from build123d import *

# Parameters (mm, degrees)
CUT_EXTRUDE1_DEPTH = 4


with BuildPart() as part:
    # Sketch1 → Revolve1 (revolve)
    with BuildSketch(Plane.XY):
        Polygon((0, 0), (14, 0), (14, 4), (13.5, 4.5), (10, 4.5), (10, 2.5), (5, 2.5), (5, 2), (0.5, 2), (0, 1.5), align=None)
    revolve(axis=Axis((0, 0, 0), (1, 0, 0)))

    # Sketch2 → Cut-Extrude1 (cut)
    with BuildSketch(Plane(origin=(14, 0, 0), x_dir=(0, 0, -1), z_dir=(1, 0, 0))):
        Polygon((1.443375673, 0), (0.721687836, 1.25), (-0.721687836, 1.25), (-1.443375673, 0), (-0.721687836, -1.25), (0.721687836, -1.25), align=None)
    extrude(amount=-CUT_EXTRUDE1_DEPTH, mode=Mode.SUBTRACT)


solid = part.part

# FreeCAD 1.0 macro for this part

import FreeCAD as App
import Part
import Sketcher

V = App.Vector
Q = App.Units.Quantity

doc = App.newDocument("Part")
body = doc.addObject("PartDesign::Body", "Body")

# Sketch on XY plane
sketch1 = body.newObject("Sketcher::SketchObject", "Sketch")
sketch1.AttachmentSupport = (doc.getObject("XY_Plane"), [""])
sketch1.MapMode = "FlatFace"
sketch1.addGeometry(Part.LineSegment(V(0, 0, 0), V(14, 0, 0)), False)
sketch1.addGeometry(Part.LineSegment(V(14, 0, 0), V(14, 4, 0)), False)
sketch1.addGeometry(Part.LineSegment(V(14, 4, 0), V(13.5, 4.5, 0)), False)
sketch1.addGeometry(Part.LineSegment(V(13.5, 4.5, 0), V(10, 4.5, 0)), False)
sketch1.addGeometry(Part.LineSegment(V(10, 4.5, 0), V(10, 2.5, 0)), False)
sketch1.addGeometry(Part.LineSegment(V(10, 2.5, 0), V(5, 2.5, 0)), False)
sketch1.addGeometry(Part.LineSegment(V(5, 2.5, 0), V(5, 2, 0)), False)
sketch1.addGeometry(Part.LineSegment(V(5, 2, 0), V(0.5, 2, 0)), False)
sketch1.addGeometry(Part.LineSegment(V(0.5, 2, 0), V(0, 1.5, 0)), False)
sketch1.addGeometry(Part.LineSegment(V(0, 1.5, 0), V(0, 0, 0)), False)
sketch1.addConstraint(Sketcher.Constraint("Coincident", 0, 2, 1, 1))
sketch1.addConstraint(Sketcher.Constraint("Coincident", 1, 2, 2, 1))
sketch1.addConstraint(Sketcher.Constraint("Coincident", 2, 2, 3, 1))
sketch1.addConstraint(Sketcher.Constraint("Coincident", 3, 2, 4, 1))
sketch1.addConstraint(Sketcher.Constraint("Coincident", 4, 2, 5, 1))
sketch1.addConstraint(Sketcher.Constraint("Coincident", 5, 2, 6, 1))
sketch1.addConstraint(Sketcher.Constraint("Coincident", 6, 2, 7, 1))
sketch1.addConstraint(Sketcher.Constraint("Coincident", 7, 2, 8, 1))
sketch1.addConstraint(Sketcher.Constraint("Coincident", 8, 2, 9, 1))
sketch1.addConstraint(Sketcher.Constraint("Coincident", 9, 2, 0, 1))
sketch1.addConstraint(Sketcher.Constraint("Horizontal", 0))
sketch1.addConstraint(Sketcher.Constraint("Vertical", 1))
sketch1.addConstraint(Sketcher.Constraint("Horizontal", 3))
sketch1.addConstraint(Sketcher.Constraint("Vertical", 4))
sketch1.addConstraint(Sketcher.Constraint("Horizontal", 5))
sketch1.addConstraint(Sketcher.Constraint("Vertical", 6))
sketch1.addConstraint(Sketcher.Constraint("Horizontal", 7))
sketch1.addConstraint(Sketcher.Constraint("Vertical", 9))
sketch1.addConstraint(Sketcher.Constraint("Coincident", 9, 2, -1, 1))
sketch1.addConstraint(Sketcher.Constraint("Perpendicular", 2, 8))
sketch1.addConstraint(Sketcher.Constraint("Equal", 2, 8))
sketch1.addConstraint(Sketcher.Constraint("DistanceX", 0, 1, 0, 2, 14.0))
sketch1.addConstraint(Sketcher.Constraint("DistanceX", 5, 2, 5, 1, 5.0))
sketch1.addConstraint(Sketcher.Constraint("DistanceY", 1, 1, 1, 2, 4.0))
sketch1.addConstraint(Sketcher.Constraint("DistanceY", 4, 2, 4, 1, 2.0))
sketch1.addConstraint(Sketcher.Constraint("Angle", 2, Q("135 deg")))
sketch1.addConstraint(Sketcher.Constraint("DistanceX", 3, 2, 3, 1, 3.5))
sketch1.addConstraint(Sketcher.Constraint("DistanceX", 7, 2, 7, 1, 4.5))
sketch1.addConstraint(Sketcher.Constraint("DistanceY", 6, 2, 6, 1, 0.5))
revolution = body.newObject("PartDesign::Revolution", "Revolution")
revolution.Profile = sketch1
revolution.ReferenceAxis = (sketch1, ["H_Axis"])
revolution.Angle = 360

# Sketch on YZ plane
sketch2 = body.newObject("Sketcher::SketchObject", "Sketch001")
sketch2.AttachmentSupport = (doc.getObject("YZ_Plane"), [""])
sketch2.MapMode = "FlatFace"
sketch2.AttachmentOffset = App.Placement(V(0, 0, 14), App.Rotation())
sketch2.addGeometry(Part.LineSegment(V(0, -1.4, 0), V(1.2, -0.7, 0)), False)
sketch2.addGeometry(Part.LineSegment(V(1.2, -0.7, 0), V(1.2, 0.7, 0)), False)
sketch2.addGeometry(Part.LineSegment(V(1.2, 0.7, 0), V(0, 1.4, 0)), False)
sketch2.addGeometry(Part.LineSegment(V(0, 1.4, 0), V(-1.2, 0.7, 0)), False)
sketch2.addGeometry(Part.LineSegment(V(-1.2, 0.7, 0), V(-1.2, -0.7, 0)), False)
sketch2.addGeometry(Part.LineSegment(V(-1.2, -0.7, 0), V(0, -1.4, 0)), False)
sketch2.addConstraint(Sketcher.Constraint("Coincident", 0, 2, 1, 1))
sketch2.addConstraint(Sketcher.Constraint("Coincident", 1, 2, 2, 1))
sketch2.addConstraint(Sketcher.Constraint("Coincident", 2, 2, 3, 1))
sketch2.addConstraint(Sketcher.Constraint("Coincident", 3, 2, 4, 1))
sketch2.addConstraint(Sketcher.Constraint("Coincident", 4, 2, 5, 1))
sketch2.addConstraint(Sketcher.Constraint("Coincident", 5, 2, 0, 1))
sketch2.addConstraint(Sketcher.Constraint("Vertical", 1))
sketch2.addConstraint(Sketcher.Constraint("Vertical", 4))
sketch2.addConstraint(Sketcher.Constraint("Symmetric", 0, 2, 3, 2, -1, 1))
sketch2.addConstraint(Sketcher.Constraint("Symmetric", 2, 2, 5, 2, -1, 1))
sketch2.addConstraint(Sketcher.Constraint("PointOnObject", 2, 2, -2))
sketch2.addConstraint(Sketcher.Constraint("Parallel", 2, 5))
sketch2.addConstraint(Sketcher.Constraint("Horizontal", 1, 2, 3, 2))
sketch2.addConstraint(Sketcher.Constraint("Angle", 0, Q("30 deg")))
sketch2.addConstraint(Sketcher.Constraint("DistanceX", 3, 2, 1, 2, 2.5))
sketch2.addConstraint(Sketcher.Constraint("DistanceY", 1, 1, 1, 2, 1.443376))
pocket1 = body.newObject("PartDesign::Pocket", "Pocket")
pocket1.Profile = sketch2
pocket1.Length = 4

doc.recompute()
